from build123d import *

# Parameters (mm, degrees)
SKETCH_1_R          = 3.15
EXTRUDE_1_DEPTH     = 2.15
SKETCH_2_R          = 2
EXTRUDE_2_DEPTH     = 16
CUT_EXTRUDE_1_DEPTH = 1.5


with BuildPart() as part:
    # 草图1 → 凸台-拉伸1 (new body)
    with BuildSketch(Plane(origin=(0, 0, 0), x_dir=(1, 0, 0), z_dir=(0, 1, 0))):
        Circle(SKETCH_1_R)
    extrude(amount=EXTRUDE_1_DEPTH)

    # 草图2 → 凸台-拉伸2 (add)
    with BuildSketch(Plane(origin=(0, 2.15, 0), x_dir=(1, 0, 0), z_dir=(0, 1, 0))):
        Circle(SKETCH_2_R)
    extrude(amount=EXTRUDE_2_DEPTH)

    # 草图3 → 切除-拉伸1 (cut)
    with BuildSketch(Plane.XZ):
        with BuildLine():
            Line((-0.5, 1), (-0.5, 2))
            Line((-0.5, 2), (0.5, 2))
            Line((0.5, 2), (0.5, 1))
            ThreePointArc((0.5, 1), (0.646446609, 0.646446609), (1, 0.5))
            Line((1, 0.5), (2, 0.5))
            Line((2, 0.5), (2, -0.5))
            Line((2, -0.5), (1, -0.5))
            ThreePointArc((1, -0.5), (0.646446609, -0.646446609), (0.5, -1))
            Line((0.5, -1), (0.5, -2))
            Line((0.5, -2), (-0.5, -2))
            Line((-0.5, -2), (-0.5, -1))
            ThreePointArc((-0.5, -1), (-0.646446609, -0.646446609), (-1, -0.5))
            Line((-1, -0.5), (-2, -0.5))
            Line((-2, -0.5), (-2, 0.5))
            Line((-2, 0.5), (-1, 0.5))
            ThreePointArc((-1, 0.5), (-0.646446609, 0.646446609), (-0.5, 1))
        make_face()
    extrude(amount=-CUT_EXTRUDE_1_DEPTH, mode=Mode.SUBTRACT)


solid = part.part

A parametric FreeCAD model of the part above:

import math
import FreeCAD as App
import Part
import Sketcher

doc = App.newDocument("Part")
body = doc.addObject("PartDesign::Body", "Body")

# Sketch on XZ plane
sketch1 = body.newObject("Sketcher::SketchObject", "Sketch")
sketch1.AttachmentSupport = (doc.getObject("XZ_Plane"), [""])
sketch1.MapMode = "FlatFace"
sketch1.addGeometry(Part.Circle(App.Vector(0, 0, 0), App.Vector(0, 0, 1), 3.15), False)
sketch1.addConstraint(Sketcher.Constraint("Coincident", 0, 3, -1, 1))
sketch1.addConstraint(Sketcher.Constraint("Diameter", 0, 6.3))
pad1 = body.newObject("PartDesign::Pad", "Pad")
pad1.Profile = sketch1
pad1.Length = 2.15
pad1.Reversed = True

# Sketch on XZ plane
sketch2 = body.newObject("Sketcher::SketchObject", "Sketch001")
sketch2.AttachmentSupport = (doc.getObject("XZ_Plane"), [""])
sketch2.MapMode = "FlatFace"
sketch2.AttachmentOffset = App.Placement(App.Vector(0, 0, -2.15), App.Rotation())
sketch2.addGeometry(Part.Circle(App.Vector(0, 0, 0), App.Vector(0, 0, 1), 2), False)
sketch2.addConstraint(Sketcher.Constraint("Coincident", 0, 3, -1, 1))
sketch2.addConstraint(Sketcher.Constraint("Diameter", 0, 4.0))
pad2 = body.newObject("PartDesign::Pad", "Pad001")
pad2.Profile = sketch2
pad2.Length = 16
pad2.Reversed = True

# Sketch on XZ plane
sketch3 = body.newObject("Sketcher::SketchObject", "Sketch002")
sketch3.AttachmentSupport = (doc.getObject("XZ_Plane"), [""])
sketch3.MapMode = "FlatFace"
sketch3.addGeometry(Part.LineSegment(App.Vector(-0.5, 2, 0), App.Vector(-0.5, 1, 0)), False)
sketch3.addGeometry(Part.ArcOfCircle(Part.Circle(App.Vector(-1, 1, 0), App.Vector(0, 0, 1), 0.5), math.radians(-90), math.radians(0)), False)
sketch3.addGeometry(Part.LineSegment(App.Vector(-1, 0.5, 0), App.Vector(-2, 0.5, 0)), False)
sketch3.addGeometry(Part.LineSegment(App.Vector(-2, 0.5, 0), App.Vector(-2, -0.5, 0)), False)
sketch3.addGeometry(Part.LineSegment(App.Vector(-2, -0.5, 0), App.Vector(-1, -0.5, 0)), False)
sketch3.addGeometry(Part.ArcOfCircle(Part.Circle(App.Vector(-1, -1, 0), App.Vector(0, 0, 1), 0.5), math.radians(0), math.radians(90)), False)
sketch3.addGeometry(Part.LineSegment(App.Vector(-0.5, -1, 0), App.Vector(-0.5, -2, 0)), False)
sketch3.addGeometry(Part.LineSegment(App.Vector(-0.5, -2, 0), App.Vector(0.5, -2, 0)), False)
sketch3.addGeometry(Part.LineSegment(App.Vector(0.5, -2, 0), App.Vector(0.5, -1, 0)), False)
sketch3.addGeometry(Part.ArcOfCircle(Part.Circle(App.Vector(1, -1, 0), App.Vector(0, 0, 1), 0.5), math.radians(90), math.radians(180)), False)
sketch3.addGeometry(Part.LineSegment(App.Vector(1, -0.5, 0), App.Vector(2, -0.5, 0)), False)
sketch3.addGeometry(Part.LineSegment(App.Vector(2, -0.5, 0), App.Vector(2, 0.5, 0)), False)
sketch3.addGeometry(Part.LineSegment(App.Vector(2, 0.5, 0), App.Vector(1, 0.5, 0)), False)
sketch3.addGeometry(Part.ArcOfCircle(Part.Circle(App.Vector(1, 1, 0), App.Vector(0, 0, 1), 0.5), math.radians(180), math.radians(270)), False)
sketch3.addGeometry(Part.LineSegment(App.Vector(0.5, 1, 0), App.Vector(0.5, 2, 0)), False)
sketch3.addGeometry(Part.LineSegment(App.Vector(0.5, 2, 0), App.Vector(-0.5, 2, 0)), False)
sketch3.addConstraint(Sketcher.Constraint("Tangent", 0, 2, 1, 2))
sketch3.addConstraint(Sketcher.Constraint("Tangent", 1, 1, 2, 1))
sketch3.addConstraint(Sketcher.Constraint("Coincident", 2, 2, 3, 1))
sketch3.addConstraint(Sketcher.Constraint("Coincident", 3, 2, 4, 1))
sketch3.addConstraint(Sketcher.Constraint("Tangent", 4, 2, 5, 2))
sketch3.addConstraint(Sketcher.Constraint("Tangent", 5, 1, 6, 1))
sketch3.addConstraint(Sketcher.Constraint("Coincident", 6, 2, 7, 1))
sketch3.addConstraint(Sketcher.Constraint("Coincident", 7, 2, 8, 1))
sketch3.addConstraint(Sketcher.Constraint("Tangent", 8, 2, 9, 2))
sketch3.addConstraint(Sketcher.Constraint("Tangent", 9, 1, 10, 1))
sketch3.addConstraint(Sketcher.Constraint("Coincident", 10, 2, 11, 1))
sketch3.addConstraint(Sketcher.Constraint("Coincident", 11, 2, 12, 1))
sketch3.addConstraint(Sketcher.Constraint("Tangent", 12, 2, 13, 2))
sketch3.addConstraint(Sketcher.Constraint("Tangent", 13, 1, 14, 1))
sketch3.addConstraint(Sketcher.Constraint("Coincident", 14, 2, 15, 1))
sketch3.addConstraint(Sketcher.Constraint("Coincident", 15, 2, 0, 1))
sketch3.addConstraint(Sketcher.Constraint("Vertical", 0))
sketch3.addConstraint(Sketcher.Constraint("Horizontal", 2))
sketch3.addConstraint(Sketcher.Constraint("Vertical", 3))
sketch3.addConstraint(Sketcher.Constraint("Horizontal", 4))
sketch3.addConstraint(Sketcher.Constraint("Vertical", 6))
sketch3.addConstraint(Sketcher.Constraint("Horizontal", 7))
sketch3.addConstraint(Sketcher.Constraint("Vertical", 8))
sketch3.addConstraint(Sketcher.Constraint("Horizontal", 10))
sketch3.addConstraint(Sketcher.Constraint("Vertical", 11))
sketch3.addConstraint(Sketcher.Constraint("Horizontal", 12))
sketch3.addConstraint(Sketcher.Constraint("Vertical", 14))
sketch3.addConstraint(Sketcher.Constraint("Horizontal", 15))
sketch3.addConstraint(Sketcher.Constraint("Equal", 1, 5))
sketch3.addConstraint(Sketcher.Constraint("Equal", 5, 9))
sketch3.addConstraint(Sketcher.Constraint("Equal", 9, 13))
sketch3.addConstraint(Sketcher.Constraint("Symmetric", 1, 3, 9, 3, -1, 1))
sketch3.addConstraint(Sketcher.Constraint("Symmetric", 5, 3, 13, 3, -1, 1))
sketch3.addConstraint(Sketcher.Constraint("Symmetric", 5, 3, 9, 3, -2))
sketch3.addConstraint(Sketcher.Constraint("Equal", 4, 7))
sketch3.addConstraint(Sketcher.Constraint("Equal", 7, 10))
sketch3.addConstraint(Sketcher.Constraint("Equal", 15, 0))
sketch3.addConstraint(Sketcher.Constraint("Equal", 0, 3))
sketch3.addConstraint(Sketcher.Constraint("Equal", 3, 6))
sketch3.addConstraint(Sketcher.Constraint("Radius", 1, 0.5))
sketch3.addConstraint(Sketcher.Constraint("DistanceX", 2, 2, 2, 1, 1.0))
pocket1 = body.newObject("PartDesign::Pocket", "Pocket")
pocket1.Profile = sketch3
pocket1.Length = 1.5

doc.recompute()
